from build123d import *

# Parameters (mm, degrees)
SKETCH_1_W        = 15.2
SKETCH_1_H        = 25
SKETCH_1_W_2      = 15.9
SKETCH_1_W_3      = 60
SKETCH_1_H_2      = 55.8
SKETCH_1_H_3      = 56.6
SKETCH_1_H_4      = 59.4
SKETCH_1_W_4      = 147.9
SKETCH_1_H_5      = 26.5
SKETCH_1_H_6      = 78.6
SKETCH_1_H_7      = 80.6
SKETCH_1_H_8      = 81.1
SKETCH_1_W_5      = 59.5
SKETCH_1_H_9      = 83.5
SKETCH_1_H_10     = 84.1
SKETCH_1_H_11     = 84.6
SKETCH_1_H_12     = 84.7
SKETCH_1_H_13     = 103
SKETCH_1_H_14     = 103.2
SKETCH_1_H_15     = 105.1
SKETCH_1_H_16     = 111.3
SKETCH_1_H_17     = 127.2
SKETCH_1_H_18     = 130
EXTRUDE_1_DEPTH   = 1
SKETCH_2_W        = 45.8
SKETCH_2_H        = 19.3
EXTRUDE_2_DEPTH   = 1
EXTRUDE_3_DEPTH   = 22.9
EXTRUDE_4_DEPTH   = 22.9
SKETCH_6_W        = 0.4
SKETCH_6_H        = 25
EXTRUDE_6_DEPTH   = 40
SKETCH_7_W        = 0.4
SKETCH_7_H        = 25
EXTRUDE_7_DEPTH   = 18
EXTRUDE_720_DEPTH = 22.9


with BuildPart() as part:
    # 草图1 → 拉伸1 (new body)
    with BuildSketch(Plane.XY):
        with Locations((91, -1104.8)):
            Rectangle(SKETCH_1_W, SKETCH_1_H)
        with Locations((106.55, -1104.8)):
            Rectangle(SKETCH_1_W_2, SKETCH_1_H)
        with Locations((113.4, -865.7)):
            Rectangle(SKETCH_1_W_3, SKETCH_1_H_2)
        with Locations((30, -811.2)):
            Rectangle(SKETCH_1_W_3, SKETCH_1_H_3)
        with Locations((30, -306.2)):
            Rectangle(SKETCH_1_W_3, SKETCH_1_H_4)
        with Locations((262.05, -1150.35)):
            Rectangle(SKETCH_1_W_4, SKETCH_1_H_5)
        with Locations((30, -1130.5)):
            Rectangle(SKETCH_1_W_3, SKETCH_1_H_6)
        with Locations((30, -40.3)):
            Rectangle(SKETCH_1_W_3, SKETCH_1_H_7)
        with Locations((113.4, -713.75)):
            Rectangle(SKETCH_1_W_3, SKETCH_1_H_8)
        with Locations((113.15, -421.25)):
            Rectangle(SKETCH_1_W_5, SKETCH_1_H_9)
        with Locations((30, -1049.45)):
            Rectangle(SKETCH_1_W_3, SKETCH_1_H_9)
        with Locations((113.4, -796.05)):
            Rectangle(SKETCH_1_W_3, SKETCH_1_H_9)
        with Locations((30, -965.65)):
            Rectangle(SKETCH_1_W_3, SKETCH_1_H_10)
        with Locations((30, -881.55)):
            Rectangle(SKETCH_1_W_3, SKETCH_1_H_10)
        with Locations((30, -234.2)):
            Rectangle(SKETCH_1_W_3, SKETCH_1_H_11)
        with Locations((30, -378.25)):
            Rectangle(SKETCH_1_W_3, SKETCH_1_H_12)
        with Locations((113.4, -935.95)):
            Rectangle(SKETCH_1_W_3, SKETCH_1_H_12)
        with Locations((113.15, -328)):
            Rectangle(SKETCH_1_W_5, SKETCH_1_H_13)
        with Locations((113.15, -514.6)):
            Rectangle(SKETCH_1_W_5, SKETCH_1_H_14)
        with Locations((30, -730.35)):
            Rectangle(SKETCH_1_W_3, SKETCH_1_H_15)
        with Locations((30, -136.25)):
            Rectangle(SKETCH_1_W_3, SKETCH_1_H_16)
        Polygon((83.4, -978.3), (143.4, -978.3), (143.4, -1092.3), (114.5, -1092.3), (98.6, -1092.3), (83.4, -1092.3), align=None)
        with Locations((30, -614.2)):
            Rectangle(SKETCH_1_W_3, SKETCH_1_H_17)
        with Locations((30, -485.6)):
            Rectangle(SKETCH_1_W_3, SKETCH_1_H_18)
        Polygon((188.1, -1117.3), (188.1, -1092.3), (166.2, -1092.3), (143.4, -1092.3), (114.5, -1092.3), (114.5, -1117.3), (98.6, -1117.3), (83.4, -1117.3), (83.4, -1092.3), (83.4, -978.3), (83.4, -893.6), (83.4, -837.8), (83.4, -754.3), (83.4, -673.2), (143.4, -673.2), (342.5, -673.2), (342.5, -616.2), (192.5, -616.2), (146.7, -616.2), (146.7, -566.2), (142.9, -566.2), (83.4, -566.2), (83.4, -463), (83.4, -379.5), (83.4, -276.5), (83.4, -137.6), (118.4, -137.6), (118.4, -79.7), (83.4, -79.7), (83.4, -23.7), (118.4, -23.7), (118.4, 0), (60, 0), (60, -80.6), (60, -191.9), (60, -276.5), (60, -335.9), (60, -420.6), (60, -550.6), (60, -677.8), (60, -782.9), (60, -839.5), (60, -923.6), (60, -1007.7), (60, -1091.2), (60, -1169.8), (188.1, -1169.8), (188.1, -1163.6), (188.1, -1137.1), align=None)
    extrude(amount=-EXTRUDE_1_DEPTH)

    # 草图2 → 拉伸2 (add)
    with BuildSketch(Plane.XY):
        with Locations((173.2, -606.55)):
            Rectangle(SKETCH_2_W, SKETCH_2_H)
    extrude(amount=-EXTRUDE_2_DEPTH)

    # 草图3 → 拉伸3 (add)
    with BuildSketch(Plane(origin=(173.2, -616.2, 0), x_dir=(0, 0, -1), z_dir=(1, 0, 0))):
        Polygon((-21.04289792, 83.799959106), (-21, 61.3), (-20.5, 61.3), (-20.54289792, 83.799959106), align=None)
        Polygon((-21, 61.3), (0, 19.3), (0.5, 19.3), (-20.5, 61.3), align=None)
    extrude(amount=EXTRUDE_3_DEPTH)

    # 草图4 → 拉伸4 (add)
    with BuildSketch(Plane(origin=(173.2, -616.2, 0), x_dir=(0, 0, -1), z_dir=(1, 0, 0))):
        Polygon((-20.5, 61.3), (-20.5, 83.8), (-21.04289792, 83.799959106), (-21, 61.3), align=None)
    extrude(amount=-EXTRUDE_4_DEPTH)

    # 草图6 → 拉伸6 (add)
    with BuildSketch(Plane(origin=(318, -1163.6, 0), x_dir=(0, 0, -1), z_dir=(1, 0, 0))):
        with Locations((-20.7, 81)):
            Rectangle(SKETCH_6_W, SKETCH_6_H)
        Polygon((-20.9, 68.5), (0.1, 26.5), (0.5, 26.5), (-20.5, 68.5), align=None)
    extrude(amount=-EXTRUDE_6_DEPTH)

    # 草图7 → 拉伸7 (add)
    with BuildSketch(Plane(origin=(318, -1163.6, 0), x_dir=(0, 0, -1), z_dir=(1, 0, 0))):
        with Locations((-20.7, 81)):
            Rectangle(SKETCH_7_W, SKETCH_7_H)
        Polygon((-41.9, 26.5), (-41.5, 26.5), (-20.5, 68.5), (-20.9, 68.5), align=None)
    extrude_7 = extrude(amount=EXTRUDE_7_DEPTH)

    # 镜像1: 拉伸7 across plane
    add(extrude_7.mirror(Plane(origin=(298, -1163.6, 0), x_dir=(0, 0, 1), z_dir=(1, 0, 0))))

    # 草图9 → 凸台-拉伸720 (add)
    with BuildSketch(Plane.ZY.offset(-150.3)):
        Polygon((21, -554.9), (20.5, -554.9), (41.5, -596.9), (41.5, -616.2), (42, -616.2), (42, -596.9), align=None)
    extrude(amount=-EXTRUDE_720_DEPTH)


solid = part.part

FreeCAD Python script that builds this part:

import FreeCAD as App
import Part
import Sketcher

V = App.Vector

doc = App.newDocument("Part")
body = doc.addObject("PartDesign::Body", "Body")

sketch1 = body.newObject("Sketcher::SketchObject", "Sketch")
sketch1.AttachmentSupport = (doc.getObject("XY_Plane"), [""])
sketch1.MapMode = "FlatFace"
sketch1.addGeometry([
    Part.LineSegment(V(143.4, -1092.3, 0), V(143.4, -673.2, 0)),
    Part.LineSegment(V(143.4, -673.2, 0), V(342.5, -673.2, 0)),
    Part.LineSegment(V(342.5, -673.2, 0), V(342.5, -616.2, 0)),
    Part.LineSegment(V(342.5, -616.2, 0), V(146.7, -616.2, 0)),
    Part.LineSegment(V(146.7, -616.2, 0), V(146.7, -566.2, 0)),
    Part.LineSegment(V(146.7, -566.2, 0), V(142.9, -566.2, 0)),
    Part.LineSegment(V(142.9, -566.2, 0), V(142.9, -276.5, 0)),
    Part.LineSegment(V(142.9, -276.5, 0), V(83.4, -276.5, 0)),
    Part.LineSegment(V(83.4, -276.5, 0), V(83.4, -137.6, 0)),
    Part.LineSegment(V(83.4, -137.6, 0), V(118.4, -137.6, 0)),
    Part.LineSegment(V(118.4, -137.6, 0), V(118.4, -79.7, 0)),
    Part.LineSegment(V(118.4, -79.7, 0), V(83.4, -79.7, 0)),
    Part.LineSegment(V(83.4, -79.7, 0), V(83.4, -23.7, 0)),
    Part.LineSegment(V(83.4, -23.7, 0), V(118.4, -23.7, 0)),
    Part.LineSegment(V(118.4, -23.7, 0), V(118.4, 0, 0)),
    Part.LineSegment(V(118.4, 0, 0), V(0, 0, 0)),
    Part.LineSegment(V(0, 0, 0), V(0, -1169.8, 0)),
    Part.LineSegment(V(0, -1169.8, 0), V(188.1, -1169.8, 0)),
    Part.LineSegment(V(188.1, -1169.8, 0), V(188.1, -1163.6, 0)),
    Part.LineSegment(V(188.1, -1163.6, 0), V(336, -1163.6, 0)),
    Part.LineSegment(V(336, -1163.6, 0), V(336, -1137.1, 0)),
    Part.LineSegment(V(336, -1137.1, 0), V(188.1, -1137.1, 0)),
    Part.LineSegment(V(188.1, -1137.1, 0), V(188.1, -1092.3, 0)),
    Part.LineSegment(V(188.1, -1092.3, 0), V(143.4, -1092.3, 0)),
], False)
sketch1.addConstraint([
    Sketcher.Constraint("Coincident", 0, 2, 1, 1),
    Sketcher.Constraint("Coincident", 1, 2, 2, 1),
    Sketcher.Constraint("Coincident", 2, 2, 3, 1),
    Sketcher.Constraint("Coincident", 3, 2, 4, 1),
    Sketcher.Constraint("Coincident", 4, 2, 5, 1),
    Sketcher.Constraint("Coincident", 5, 2, 6, 1),
    Sketcher.Constraint("Coincident", 6, 2, 7, 1),
    Sketcher.Constraint("Coincident", 7, 2, 8, 1),
    Sketcher.Constraint("Coincident", 8, 2, 9, 1),
    Sketcher.Constraint("Coincident", 9, 2, 10, 1),
    Sketcher.Constraint("Coincident", 10, 2, 11, 1),
    Sketcher.Constraint("Coincident", 11, 2, 12, 1),
    Sketcher.Constraint("Coincident", 12, 2, 13, 1),
    Sketcher.Constraint("Coincident", 13, 2, 14, 1),
    Sketcher.Constraint("Coincident", 14, 2, 15, 1),
    Sketcher.Constraint("Coincident", 15, 2, 16, 1),
    Sketcher.Constraint("Coincident", 16, 2, 17, 1),
    Sketcher.Constraint("Coincident", 17, 2, 18, 1),
    Sketcher.Constraint("Coincident", 18, 2, 19, 1),
    Sketcher.Constraint("Coincident", 19, 2, 20, 1),
    Sketcher.Constraint("Coincident", 20, 2, 21, 1),
    Sketcher.Constraint("Coincident", 21, 2, 22, 1),
    Sketcher.Constraint("Coincident", 22, 2, 23, 1),
    Sketcher.Constraint("Coincident", 23, 2, 0, 1),
    Sketcher.Constraint("Vertical", 0),
    Sketcher.Constraint("Horizontal", 1),
    Sketcher.Constraint("Vertical", 2),
    Sketcher.Constraint("Horizontal", 3),
    Sketcher.Constraint("Vertical", 4),
    Sketcher.Constraint("Horizontal", 5),
    Sketcher.Constraint("Vertical", 6),
    Sketcher.Constraint("Horizontal", 7),
    Sketcher.Constraint("Vertical", 8),
    Sketcher.Constraint("Horizontal", 9),
    Sketcher.Constraint("Vertical", 10),
    Sketcher.Constraint("Horizontal", 11),
    Sketcher.Constraint("Vertical", 12),
    Sketcher.Constraint("Horizontal", 13),
    Sketcher.Constraint("Vertical", 14),
    Sketcher.Constraint("Horizontal", 15),
    Sketcher.Constraint("Vertical", 16),
    Sketcher.Constraint("Horizontal", 17),
    Sketcher.Constraint("Vertical", 18),
    Sketcher.Constraint("Horizontal", 19),
    Sketcher.Constraint("Vertical", 20),
    Sketcher.Constraint("Horizontal", 21),
    Sketcher.Constraint("Vertical", 22),
    Sketcher.Constraint("Horizontal", 23),
    Sketcher.Constraint("Coincident", 15, 2, -1, 1),
    Sketcher.Constraint("Vertical", 8, 2, 11, 2),
    Sketcher.Constraint("Vertical", 10, 2, 13, 2),
    Sketcher.Constraint("Vertical", 18, 2, 21, 2),
    Sketcher.Constraint("DistanceX", 9, 1, 9, 2, 35.0),
    Sketcher.Constraint("DistanceY", 2, 1, 2, 2, 57.0),
    Sketcher.Constraint("DistanceY", 4, 1, 4, 2, 50.0),
    Sketcher.Constraint("DistanceY", 12, 1, 12, 2, 56.0),
    Sketcher.Constraint("DistanceX", 1, 1, 1, 2, 199.1),
    Sketcher.Constraint("DistanceX", 3, 2, 3, 1, 195.8),
    Sketcher.Constraint("DistanceX", 5, 2, 5, 1, 3.8),
    Sketcher.Constraint("DistanceX", 7, 2, 7, 1, 59.5),
    Sketcher.Constraint("DistanceX", 15, 2, 15, 1, 118.4),
    Sketcher.Constraint("DistanceX", 17, 1, 17, 2, 188.1),
    Sketcher.Constraint("DistanceX", 19, 1, 19, 2, 147.9),
    Sketcher.Constraint("DistanceY", 0, 1, 0, 2, 419.1),
    Sketcher.Constraint("DistanceY", 6, 1, 6, 2, 289.7),
    Sketcher.Constraint("DistanceY", 8, 1, 8, 2, 138.9),
    Sketcher.Constraint("DistanceY", 10, 1, 10, 2, 57.9),
    Sketcher.Constraint("DistanceY", 14, 1, 14, 2, 23.7),
    Sketcher.Constraint("DistanceY", 16, 2, 16, 1, 1169.8),
    Sketcher.Constraint("DistanceY", 18, 1, 18, 2, 6.2),
    Sketcher.Constraint("DistanceY", 20, 1, 20, 2, 26.5),
])
pad1 = body.newObject("PartDesign::Pad", "Pad")
pad1.Profile = sketch1
pad1.Length = 1
pad1.Reversed = True

sketch2 = body.newObject("Sketcher::SketchObject", "Sketch001")
sketch2.AttachmentSupport = (doc.getObject("XY_Plane"), [""])
sketch2.MapMode = "FlatFace"
sketch2.addGeometry([
    Part.LineSegment(V(150.3, -596.9, 0), V(150.3, -616.2, 0)),
    Part.LineSegment(V(150.3, -616.2, 0), V(196.1, -616.2, 0)),
    Part.LineSegment(V(196.1, -616.2, 0), V(196.1, -596.9, 0)),
    Part.LineSegment(V(196.1, -596.9, 0), V(150.3, -596.9, 0)),
], False)
sketch2.addConstraint([
    Sketcher.Constraint("Coincident", 0, 2, 1, 1),
    Sketcher.Constraint("Coincident", 1, 2, 2, 1),
    Sketcher.Constraint("Coincident", 2, 2, 3, 1),
    Sketcher.Constraint("Coincident", 3, 2, 0, 1),
    Sketcher.Constraint("Vertical", 0),
    Sketcher.Constraint("Horizontal", 1),
    Sketcher.Constraint("Vertical", 2),
    Sketcher.Constraint("Horizontal", 3),
    Sketcher.Constraint("DistanceX", 1, 1, 1, 2, 45.8),
    Sketcher.Constraint("DistanceY", 0, 2, 0, 1, 19.3),
    Sketcher.Constraint("DistanceX", -1, 1, 0, 2, 150.3),
    Sketcher.Constraint("DistanceY", 0, 2, -1, 1, 616.2),
])
pad2 = body.newObject("PartDesign::Pad", "Pad001")
pad2.Profile = sketch2
pad2.Length = 1
pad2.Reversed = True

sketch3 = body.newObject("Sketcher::SketchObject", "Sketch002")
sketch3.AttachmentSupport = (doc.getObject("YZ_Plane"), [""])
sketch3.MapMode = "FlatFace"
sketch3.AttachmentOffset = App.Placement(V(0, 0, 173.2), App.Rotation())
sketch3.addGeometry([
    Part.LineSegment(V(-532.400041, 21.042898, 0), V(-554.9, 21, 0)),
    Part.LineSegment(V(-554.9, 21, 0), V(-596.9, 0, 0)),
    Part.LineSegment(V(-596.9, 0, 0), V(-596.9, -0.5, 0)),
    Part.LineSegment(V(-596.9, -0.5, 0), V(-554.9, 20.5, 0)),
    Part.LineSegment(V(-554.9, 20.5, 0), V(-532.400041, 20.542898, 0)),
    Part.LineSegment(V(-532.400041, 20.542898, 0), V(-532.400041, 21.042898, 0)),
], False)
sketch3.addConstraint([
    Sketcher.Constraint("Coincident", 0, 2, 1, 1),
    Sketcher.Constraint("Coincident", 1, 2, 2, 1),
    Sketcher.Constraint("Coincident", 2, 2, 3, 1),
    Sketcher.Constraint("Coincident", 3, 2, 4, 1),
    Sketcher.Constraint("Coincident", 4, 2, 5, 1),
    Sketcher.Constraint("Coincident", 5, 2, 0, 1),
    Sketcher.Constraint("Vertical", 2),
    Sketcher.Constraint("Vertical", 5),
    Sketcher.Constraint("PointOnObject", 1, 2, -1),
    Sketcher.Constraint("Parallel", 1, 3),
    Sketcher.Constraint("Parallel", 0, 4),
    Sketcher.Constraint("Vertical", 0, 2, 3, 2),
    Sketcher.Constraint("DistanceY", 2, 2, 2, 1, 0.5),
    Sketcher.Constraint("DistanceY", -1, 1, 0, 2, 21.0),
    Sketcher.Constraint("DistanceX", 1, 2, 0, 2, 42.0),
    Sketcher.Constraint("Distance", 0, 22.5),
    Sketcher.Constraint("DistanceX", 0, 2, -1, 1, 554.9),
    Sketcher.Constraint("DistanceY", -1, 1, 4, 2, 20.542898),
])
pad3 = body.newObject("PartDesign::Pad", "Pad002")
pad3.Profile = sketch3
pad3.Length = 22.9

sketch4 = body.newObject("Sketcher::SketchObject", "Sketch003")
sketch4.AttachmentSupport = (doc.getObject("YZ_Plane"), [""])
sketch4.MapMode = "FlatFace"
sketch4.AttachmentOffset = App.Placement(V(0, 0, 173.2), App.Rotation())
sketch4.addGeometry([
    Part.LineSegment(V(-554.9, 20.5, 0), V(-532.4, 20.5, 0)),
    Part.LineSegment(V(-532.4, 20.5, 0), V(-532.400041, 21.042898, 0)),
    Part.LineSegment(V(-532.400041, 21.042898, 0), V(-554.9, 21, 0)),
    Part.LineSegment(V(-554.9, 21, 0), V(-554.9, 20.5, 0)),
], False)
sketch4.addConstraint([
    Sketcher.Constraint("Coincident", 0, 2, 1, 1),
    Sketcher.Constraint("Coincident", 1, 2, 2, 1),
    Sketcher.Constraint("Coincident", 2, 2, 3, 1),
    Sketcher.Constraint("Coincident", 3, 2, 0, 1),
    Sketcher.Constraint("Horizontal", 0),
    Sketcher.Constraint("Vertical", 3),
    Sketcher.Constraint("DistanceX", 0, 1, 0, 2, 22.5),
    Sketcher.Constraint("DistanceY", 3, 2, 3, 1, 0.5),
    Sketcher.Constraint("DistanceY", -1, 1, 2, 2, 21.0),
    Sketcher.Constraint("Distance", 2, 22.5),
    Sketcher.Constraint("DistanceX", 0, 2, -1, 1, 532.4),
    Sketcher.Constraint("Distance", 1, 0.542898),
])
pad4 = body.newObject("PartDesign::Pad", "Pad003")
pad4.Profile = sketch4
pad4.Length = 22.9
pad4.Reversed = True

sketch5 = body.newObject("Sketcher::SketchObject", "Sketch004")
sketch5.AttachmentSupport = (doc.getObject("YZ_Plane"), [""])
sketch5.MapMode = "FlatFace"
sketch5.AttachmentOffset = App.Placement(V(0, 0, 318), App.Rotation())
sketch5.addGeometry([
    Part.LineSegment(V(-1070.1, 20.9, 0), V(-1095.1, 20.9, 0)),
    Part.LineSegment(V(-1095.1, 20.9, 0), V(-1137.1, -0.1, 0)),
    Part.LineSegment(V(-1137.1, -0.1, 0), V(-1137.1, -0.5, 0)),
    Part.LineSegment(V(-1137.1, -0.5, 0), V(-1095.1, 20.5, 0)),
    Part.LineSegment(V(-1095.1, 20.5, 0), V(-1070.1, 20.5, 0)),
    Part.LineSegment(V(-1070.1, 20.5, 0), V(-1070.1, 20.9, 0)),
], False)
sketch5.addConstraint([
    Sketcher.Constraint("Coincident", 0, 2, 1, 1),
    Sketcher.Constraint("Coincident", 1, 2, 2, 1),
    Sketcher.Constraint("Coincident", 2, 2, 3, 1),
    Sketcher.Constraint("Coincident", 3, 2, 4, 1),
    Sketcher.Constraint("Coincident", 4, 2, 5, 1),
    Sketcher.Constraint("Coincident", 5, 2, 0, 1),
    Sketcher.Constraint("Horizontal", 0),
    Sketcher.Constraint("Vertical", 2),
    Sketcher.Constraint("Horizontal", 4),
    Sketcher.Constraint("Vertical", 5),
    Sketcher.Constraint("Parallel", 1, 3),
    Sketcher.Constraint("Vertical", 0, 2, 3, 2),
    Sketcher.Constraint("DistanceX", 0, 2, 0, 1, 25.0),
    Sketcher.Constraint("DistanceY", 2, 2, 2, 1, 0.4),
    Sketcher.Constraint("DistanceX", 1, 2, 0, 2, 42.0),
    Sketcher.Constraint("DistanceY", 1, 2, 0, 2, 21.0),
    Sketcher.Constraint("DistanceX", 0, 2, -1, 1, 1095.1),
    Sketcher.Constraint("DistanceY", -1, 1, 0, 2, 20.9),
])
pad5 = body.newObject("PartDesign::Pad", "Pad004")
pad5.Profile = sketch5
pad5.Length = 40
pad5.Reversed = True

sketch6 = body.newObject("Sketcher::SketchObject", "Sketch005")
sketch6.AttachmentSupport = (doc.getObject("YZ_Plane"), [""])
sketch6.MapMode = "FlatFace"
sketch6.AttachmentOffset = App.Placement(V(0, 0, 318), App.Rotation())
sketch6.addGeometry([
    Part.LineSegment(V(-1070.1, 20.9, 0), V(-1095.1, 20.9, 0)),
    Part.LineSegment(V(-1095.1, 20.9, 0), V(-1137.1, 41.9, 0)),
    Part.LineSegment(V(-1137.1, 41.9, 0), V(-1137.1, 41.5, 0)),
    Part.LineSegment(V(-1137.1, 41.5, 0), V(-1095.1, 20.5, 0)),
    Part.LineSegment(V(-1095.1, 20.5, 0), V(-1070.1, 20.5, 0)),
    Part.LineSegment(V(-1070.1, 20.5, 0), V(-1070.1, 20.9, 0)),
], False)
sketch6.addConstraint([
    Sketcher.Constraint("Coincident", 0, 2, 1, 1),
    Sketcher.Constraint("Coincident", 1, 2, 2, 1),
    Sketcher.Constraint("Coincident", 2, 2, 3, 1),
    Sketcher.Constraint("Coincident", 3, 2, 4, 1),
    Sketcher.Constraint("Coincident", 4, 2, 5, 1),
    Sketcher.Constraint("Coincident", 5, 2, 0, 1),
    Sketcher.Constraint("Horizontal", 0),
    Sketcher.Constraint("Vertical", 2),
    Sketcher.Constraint("Horizontal", 4),
    Sketcher.Constraint("Vertical", 5),
    Sketcher.Constraint("Parallel", 1, 3),
    Sketcher.Constraint("Vertical", 0, 2, 3, 2),
    Sketcher.Constraint("DistanceX", 0, 2, 0, 1, 25.0),
    Sketcher.Constraint("DistanceY", 2, 2, 2, 1, 0.4),
    Sketcher.Constraint("DistanceX", 1, 2, 0, 2, 42.0),
    Sketcher.Constraint("DistanceY", 0, 2, 1, 2, 21.0),
    Sketcher.Constraint("DistanceX", 0, 2, -1, 1, 1095.1),
    Sketcher.Constraint("DistanceY", -1, 1, 0, 2, 20.9),
])
pad6 = body.newObject("PartDesign::Pad", "Pad005")
pad6.Profile = sketch6
pad6.Length = 18
doc.recompute()

datumplane = body.newObject("PartDesign::Plane", "DatumPlane")
datumplane.AttachmentSupport = (doc.getObject("YZ_Plane"), [""])
datumplane.MapMode = "FlatFace"
datumplane.AttachmentOffset = App.Placement(V(0, 0, 298), App.Rotation())
mirrored = body.newObject("PartDesign::Mirrored", "Mirrored")
mirrored.Originals = [pad6]
mirrored.MirrorPlane = (datumplane, [""])
body.Tip = mirrored

sketch7 = body.newObject("Sketcher::SketchObject", "Sketch006")
sketch7.AttachmentSupport = (doc.getObject("YZ_Plane"), [""])
sketch7.MapMode = "FlatFace"
sketch7.AttachmentOffset = App.Placement(V(0, 0, 150.3), App.Rotation())
sketch7.addGeometry([
    Part.LineSegment(V(-554.9, 21, 0), V(-554.9, 20.5, 0)),
    Part.LineSegment(V(-554.9, 20.5, 0), V(-596.9, 41.5, 0)),
    Part.LineSegment(V(-596.9, 41.5, 0), V(-616.2, 41.5, 0)),
    Part.LineSegment(V(-616.2, 41.5, 0), V(-616.2, 42, 0)),
    Part.LineSegment(V(-616.2, 42, 0), V(-596.9, 42, 0)),
    Part.LineSegment(V(-596.9, 42, 0), V(-554.9, 21, 0)),
], False)
sketch7.addConstraint([
    Sketcher.Constraint("Coincident", 0, 2, 1, 1),
    Sketcher.Constraint("Coincident", 1, 2, 2, 1),
    Sketcher.Constraint("Coincident", 2, 2, 3, 1),
    Sketcher.Constraint("Coincident", 3, 2, 4, 1),
    Sketcher.Constraint("Coincident", 4, 2, 5, 1),
    Sketcher.Constraint("Coincident", 5, 2, 0, 1),
    Sketcher.Constraint("Vertical", 0),
    Sketcher.Constraint("Horizontal", 2),
    Sketcher.Constraint("Vertical", 3),
    Sketcher.Constraint("Horizontal", 4),
    Sketcher.Constraint("Parallel", 1, 5),
    Sketcher.Constraint("Vertical", 1, 2, 4, 2),
    Sketcher.Constraint("DistanceX", 2, 2, 2, 1, 19.3),
    Sketcher.Constraint("DistanceY", 0, 2, 0, 1, 0.5),
    Sketcher.Constraint("DistanceY", -1, 1, 3, 2, 42.0),
    Sketcher.Constraint("DistanceY", -1, 1, 5, 2, 21.0),
    Sketcher.Constraint("DistanceX", 1, 2, 0, 2, 42.0),
    Sketcher.Constraint("DistanceX", 0, 2, -1, 1, 554.9),
])
pad7 = body.newObject("PartDesign::Pad", "Pad006")
pad7.Profile = sketch7
pad7.Length = 22.9

doc.recompute()
